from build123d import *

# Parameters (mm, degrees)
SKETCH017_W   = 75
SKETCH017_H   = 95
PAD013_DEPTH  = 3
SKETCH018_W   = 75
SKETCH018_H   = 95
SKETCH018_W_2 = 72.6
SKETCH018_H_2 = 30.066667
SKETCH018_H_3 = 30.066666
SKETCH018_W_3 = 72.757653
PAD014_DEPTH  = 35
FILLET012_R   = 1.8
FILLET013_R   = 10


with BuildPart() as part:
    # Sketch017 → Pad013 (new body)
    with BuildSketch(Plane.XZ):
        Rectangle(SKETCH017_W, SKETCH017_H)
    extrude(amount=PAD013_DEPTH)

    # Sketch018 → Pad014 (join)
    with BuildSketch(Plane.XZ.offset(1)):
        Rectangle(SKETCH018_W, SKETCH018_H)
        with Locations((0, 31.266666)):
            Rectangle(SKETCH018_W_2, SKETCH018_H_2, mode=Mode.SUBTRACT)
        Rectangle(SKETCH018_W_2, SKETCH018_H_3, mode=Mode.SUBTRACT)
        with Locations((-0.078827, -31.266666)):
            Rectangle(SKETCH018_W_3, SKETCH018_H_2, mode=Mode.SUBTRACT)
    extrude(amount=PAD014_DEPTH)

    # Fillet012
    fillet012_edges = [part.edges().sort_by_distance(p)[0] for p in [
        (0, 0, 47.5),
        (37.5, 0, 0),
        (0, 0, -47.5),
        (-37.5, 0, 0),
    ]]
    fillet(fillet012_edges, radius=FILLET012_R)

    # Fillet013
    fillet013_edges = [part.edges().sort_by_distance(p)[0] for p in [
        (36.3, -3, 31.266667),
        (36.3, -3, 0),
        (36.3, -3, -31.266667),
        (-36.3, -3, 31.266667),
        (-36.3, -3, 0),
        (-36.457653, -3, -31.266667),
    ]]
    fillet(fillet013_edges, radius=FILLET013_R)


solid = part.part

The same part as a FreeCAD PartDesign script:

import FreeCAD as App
import Part
import Sketcher

V = App.Vector
Q = App.Units.Quantity


def edges_at(feature, points):
    """Names of the edges that pass closest to the given points."""
    edges = feature.Shape.Edges
    near = lambda p: min(range(len(edges)), key=lambda i: edges[i].distToShape(Part.Vertex(*p))[0])
    return sorted({f"Edge{near(p) + 1}" for p in points})

doc = App.newDocument("Part")
body = doc.addObject("PartDesign::Body", "Body")

# Sketch on XZ plane
sketch1 = body.newObject("Sketcher::SketchObject", "Sketch")
sketch1.AttachmentSupport = (doc.getObject("XZ_Plane"), [""])
sketch1.MapMode = "FlatFace"
sketch1.addGeometry(Part.LineSegment(V(-38, 48, 0), V(-38, -48, 0)), False)
sketch1.addGeometry(Part.LineSegment(V(-38, -48, 0), V(38, -48, 0)), False)
sketch1.addGeometry(Part.LineSegment(V(38, -48, 0), V(38, 48, 0)), False)
sketch1.addGeometry(Part.LineSegment(V(38, 48, 0), V(-38, 48, 0)), False)
sketch1.addConstraint(Sketcher.Constraint("Coincident", 0, 2, 1, 1))
sketch1.addConstraint(Sketcher.Constraint("Coincident", 1, 2, 2, 1))
sketch1.addConstraint(Sketcher.Constraint("Coincident", 2, 2, 3, 1))
sketch1.addConstraint(Sketcher.Constraint("Coincident", 3, 2, 0, 1))
sketch1.addConstraint(Sketcher.Constraint("Vertical", 0))
sketch1.addConstraint(Sketcher.Constraint("Horizontal", 1))
sketch1.addConstraint(Sketcher.Constraint("Vertical", 2))
sketch1.addConstraint(Sketcher.Constraint("Horizontal", 3))
sketch1.addConstraint(Sketcher.Constraint("Symmetric", 0, 2, 2, 2, -1, 1))
sketch1.addConstraint(Sketcher.Constraint("DistanceX", 1, 1, 1, 2, Q("75 mm")))
sketch1.addConstraint(Sketcher.Constraint("DistanceY", 0, 2, 0, 1, Q("95 mm")))
pad1 = body.newObject("PartDesign::Pad", "Pad")
pad1.Profile = sketch1
pad1.Length = 3

# Sketch on XZ plane
sketch2 = body.newObject("Sketcher::SketchObject", "Sketch001")
sketch2.AttachmentSupport = (doc.getObject("XZ_Plane"), [""])
sketch2.MapMode = "FlatFace"
sketch2.AttachmentOffset = App.Placement(V(0, 0, 1), App.Rotation())
sketch2.addGeometry(Part.LineSegment(V(-38, 48, 0), V(-38, -48, 0)), False)
sketch2.addGeometry(Part.LineSegment(V(-38, -48, 0), V(38, -48, 0)), False)
sketch2.addGeometry(Part.LineSegment(V(38, -48, 0), V(38, 48, 0)), False)
sketch2.addGeometry(Part.LineSegment(V(38, 48, 0), V(-38, 48, 0)), False)
sketch2.addGeometry(Part.LineSegment(V(36, -46, 0), V(-36, -46, 0)), False)
sketch2.addGeometry(Part.LineSegment(V(-36, -46, 0), V(-36, -16, 0)), False)
sketch2.addGeometry(Part.LineSegment(V(-36, -16, 0), V(36, -16, 0)), False)
sketch2.addGeometry(Part.LineSegment(V(36, -16, 0), V(36, -46, 0)), False)
sketch2.addGeometry(Part.LineSegment(V(36, -15, 0), V(-36, -15, 0)), False)
sketch2.addGeometry(Part.LineSegment(V(-36, -15, 0), V(-36, 15, 0)), False)
sketch2.addGeometry(Part.LineSegment(V(-36, 15, 0), V(36, 15, 0)), False)
sketch2.addGeometry(Part.LineSegment(V(36, 15, 0), V(36, -15, 0)), False)
sketch2.addGeometry(Part.LineSegment(V(36, 16, 0), V(-36, 16, 0)), False)
sketch2.addGeometry(Part.LineSegment(V(-36, 16, 0), V(-36, 46, 0)), False)
sketch2.addGeometry(Part.LineSegment(V(-36, 46, 0), V(36, 46, 0)), False)
sketch2.addGeometry(Part.LineSegment(V(36, 46, 0), V(36, 16, 0)), False)
sketch2.addConstraint(Sketcher.Constraint("Coincident", 0, 2, 1, 1))
sketch2.addConstraint(Sketcher.Constraint("Coincident", 1, 2, 2, 1))
sketch2.addConstraint(Sketcher.Constraint("Coincident", 2, 2, 3, 1))
sketch2.addConstraint(Sketcher.Constraint("Coincident", 3, 2, 0, 1))
sketch2.addConstraint(Sketcher.Constraint("Coincident", 4, 2, 5, 1))
sketch2.addConstraint(Sketcher.Constraint("Coincident", 5, 2, 6, 1))
sketch2.addConstraint(Sketcher.Constraint("Coincident", 6, 2, 7, 1))
sketch2.addConstraint(Sketcher.Constraint("Coincident", 7, 2, 4, 1))
sketch2.addConstraint(Sketcher.Constraint("Coincident", 8, 2, 9, 1))
sketch2.addConstraint(Sketcher.Constraint("Coincident", 9, 2, 10, 1))
sketch2.addConstraint(Sketcher.Constraint("Coincident", 10, 2, 11, 1))
sketch2.addConstraint(Sketcher.Constraint("Coincident", 11, 2, 8, 1))
sketch2.addConstraint(Sketcher.Constraint("Coincident", 12, 2, 13, 1))
sketch2.addConstraint(Sketcher.Constraint("Coincident", 13, 2, 14, 1))
sketch2.addConstraint(Sketcher.Constraint("Coincident", 14, 2, 15, 1))
sketch2.addConstraint(Sketcher.Constraint("Coincident", 15, 2, 12, 1))
sketch2.addConstraint(Sketcher.Constraint("Vertical", 0))
sketch2.addConstraint(Sketcher.Constraint("Horizontal", 1))
sketch2.addConstraint(Sketcher.Constraint("Vertical", 2))
sketch2.addConstraint(Sketcher.Constraint("Horizontal", 3))
sketch2.addConstraint(Sketcher.Constraint("Horizontal", 4))
sketch2.addConstraint(Sketcher.Constraint("Vertical", 5))
sketch2.addConstraint(Sketcher.Constraint("Horizontal", 6))
sketch2.addConstraint(Sketcher.Constraint("Vertical", 7))
sketch2.addConstraint(Sketcher.Constraint("Horizontal", 8))
sketch2.addConstraint(Sketcher.Constraint("Vertical", 9))
sketch2.addConstraint(Sketcher.Constraint("Horizontal", 10))
sketch2.addConstraint(Sketcher.Constraint("Vertical", 11))
sketch2.addConstraint(Sketcher.Constraint("Horizontal", 12))
sketch2.addConstraint(Sketcher.Constraint("Vertical", 13))
sketch2.addConstraint(Sketcher.Constraint("Horizontal", 14))
sketch2.addConstraint(Sketcher.Constraint("Vertical", 15))
sketch2.addConstraint(Sketcher.Constraint("Symmetric", 0, 2, 2, 2, -1, 1))
sketch2.addConstraint(Sketcher.Constraint("Symmetric", 8, 2, 10, 2, -1, 1))
sketch2.addConstraint(Sketcher.Constraint("Symmetric", 6, 2, 12, 2, -1, 1))
sketch2.addConstraint(Sketcher.Constraint("Symmetric", 7, 2, 14, 2, -1))
sketch2.addConstraint(Sketcher.Constraint("Vertical", 7, 2, 10, 2))
sketch2.addConstraint(Sketcher.Constraint("Equal", 7, 9))
sketch2.addConstraint(Sketcher.Constraint("DistanceX", 1, 1, 1, 2, Q("75 mm")))
sketch2.addConstraint(Sketcher.Constraint("DistanceY", 0, 2, 0, 1, Q("95 mm")))
sketch2.addConstraint(Sketcher.Constraint("DistanceX", 8, 2, 8, 1, Q("72.6 mm")))
sketch2.addConstraint(Sketcher.Constraint("DistanceY", 4, 2, -1, 1, Q("46.299999 mm")))
sketch2.addConstraint(Sketcher.Constraint("DistanceY", 5, 2, 8, 2, Q("1.199999 mm")))
sketch2.addConstraint(Sketcher.Constraint("DistanceX", 4, 2, 4, 1, Q("72.757653 mm")))
pad2 = body.newObject("PartDesign::Pad", "Pad001")
pad2.Profile = sketch2
pad2.Length = 35
doc.recompute()

fillet = body.newObject("PartDesign::Fillet", "Fillet")
fillet.Base = (pad2, edges_at(pad2, [
    (0, 0, 47.5),
    (37.5, 0, 0),
    (0, 0, -47.5),
    (-37.5, 0, 0),
]))
fillet.Radius = 1.8
doc.recompute()

fillet2 = body.newObject("PartDesign::Fillet", "Fillet001")
fillet2.Base = (fillet, edges_at(fillet, [
    (36.3, -3, 31.267),
    (36.3, -3, 0),
    (36.3, -3, -31.267),
    (-36.3, -3, 31.267),
    (-36.3, -3, 0),
    (-36.458, -3, -31.267),
]))
fillet2.Radius = 10

doc.recompute()
